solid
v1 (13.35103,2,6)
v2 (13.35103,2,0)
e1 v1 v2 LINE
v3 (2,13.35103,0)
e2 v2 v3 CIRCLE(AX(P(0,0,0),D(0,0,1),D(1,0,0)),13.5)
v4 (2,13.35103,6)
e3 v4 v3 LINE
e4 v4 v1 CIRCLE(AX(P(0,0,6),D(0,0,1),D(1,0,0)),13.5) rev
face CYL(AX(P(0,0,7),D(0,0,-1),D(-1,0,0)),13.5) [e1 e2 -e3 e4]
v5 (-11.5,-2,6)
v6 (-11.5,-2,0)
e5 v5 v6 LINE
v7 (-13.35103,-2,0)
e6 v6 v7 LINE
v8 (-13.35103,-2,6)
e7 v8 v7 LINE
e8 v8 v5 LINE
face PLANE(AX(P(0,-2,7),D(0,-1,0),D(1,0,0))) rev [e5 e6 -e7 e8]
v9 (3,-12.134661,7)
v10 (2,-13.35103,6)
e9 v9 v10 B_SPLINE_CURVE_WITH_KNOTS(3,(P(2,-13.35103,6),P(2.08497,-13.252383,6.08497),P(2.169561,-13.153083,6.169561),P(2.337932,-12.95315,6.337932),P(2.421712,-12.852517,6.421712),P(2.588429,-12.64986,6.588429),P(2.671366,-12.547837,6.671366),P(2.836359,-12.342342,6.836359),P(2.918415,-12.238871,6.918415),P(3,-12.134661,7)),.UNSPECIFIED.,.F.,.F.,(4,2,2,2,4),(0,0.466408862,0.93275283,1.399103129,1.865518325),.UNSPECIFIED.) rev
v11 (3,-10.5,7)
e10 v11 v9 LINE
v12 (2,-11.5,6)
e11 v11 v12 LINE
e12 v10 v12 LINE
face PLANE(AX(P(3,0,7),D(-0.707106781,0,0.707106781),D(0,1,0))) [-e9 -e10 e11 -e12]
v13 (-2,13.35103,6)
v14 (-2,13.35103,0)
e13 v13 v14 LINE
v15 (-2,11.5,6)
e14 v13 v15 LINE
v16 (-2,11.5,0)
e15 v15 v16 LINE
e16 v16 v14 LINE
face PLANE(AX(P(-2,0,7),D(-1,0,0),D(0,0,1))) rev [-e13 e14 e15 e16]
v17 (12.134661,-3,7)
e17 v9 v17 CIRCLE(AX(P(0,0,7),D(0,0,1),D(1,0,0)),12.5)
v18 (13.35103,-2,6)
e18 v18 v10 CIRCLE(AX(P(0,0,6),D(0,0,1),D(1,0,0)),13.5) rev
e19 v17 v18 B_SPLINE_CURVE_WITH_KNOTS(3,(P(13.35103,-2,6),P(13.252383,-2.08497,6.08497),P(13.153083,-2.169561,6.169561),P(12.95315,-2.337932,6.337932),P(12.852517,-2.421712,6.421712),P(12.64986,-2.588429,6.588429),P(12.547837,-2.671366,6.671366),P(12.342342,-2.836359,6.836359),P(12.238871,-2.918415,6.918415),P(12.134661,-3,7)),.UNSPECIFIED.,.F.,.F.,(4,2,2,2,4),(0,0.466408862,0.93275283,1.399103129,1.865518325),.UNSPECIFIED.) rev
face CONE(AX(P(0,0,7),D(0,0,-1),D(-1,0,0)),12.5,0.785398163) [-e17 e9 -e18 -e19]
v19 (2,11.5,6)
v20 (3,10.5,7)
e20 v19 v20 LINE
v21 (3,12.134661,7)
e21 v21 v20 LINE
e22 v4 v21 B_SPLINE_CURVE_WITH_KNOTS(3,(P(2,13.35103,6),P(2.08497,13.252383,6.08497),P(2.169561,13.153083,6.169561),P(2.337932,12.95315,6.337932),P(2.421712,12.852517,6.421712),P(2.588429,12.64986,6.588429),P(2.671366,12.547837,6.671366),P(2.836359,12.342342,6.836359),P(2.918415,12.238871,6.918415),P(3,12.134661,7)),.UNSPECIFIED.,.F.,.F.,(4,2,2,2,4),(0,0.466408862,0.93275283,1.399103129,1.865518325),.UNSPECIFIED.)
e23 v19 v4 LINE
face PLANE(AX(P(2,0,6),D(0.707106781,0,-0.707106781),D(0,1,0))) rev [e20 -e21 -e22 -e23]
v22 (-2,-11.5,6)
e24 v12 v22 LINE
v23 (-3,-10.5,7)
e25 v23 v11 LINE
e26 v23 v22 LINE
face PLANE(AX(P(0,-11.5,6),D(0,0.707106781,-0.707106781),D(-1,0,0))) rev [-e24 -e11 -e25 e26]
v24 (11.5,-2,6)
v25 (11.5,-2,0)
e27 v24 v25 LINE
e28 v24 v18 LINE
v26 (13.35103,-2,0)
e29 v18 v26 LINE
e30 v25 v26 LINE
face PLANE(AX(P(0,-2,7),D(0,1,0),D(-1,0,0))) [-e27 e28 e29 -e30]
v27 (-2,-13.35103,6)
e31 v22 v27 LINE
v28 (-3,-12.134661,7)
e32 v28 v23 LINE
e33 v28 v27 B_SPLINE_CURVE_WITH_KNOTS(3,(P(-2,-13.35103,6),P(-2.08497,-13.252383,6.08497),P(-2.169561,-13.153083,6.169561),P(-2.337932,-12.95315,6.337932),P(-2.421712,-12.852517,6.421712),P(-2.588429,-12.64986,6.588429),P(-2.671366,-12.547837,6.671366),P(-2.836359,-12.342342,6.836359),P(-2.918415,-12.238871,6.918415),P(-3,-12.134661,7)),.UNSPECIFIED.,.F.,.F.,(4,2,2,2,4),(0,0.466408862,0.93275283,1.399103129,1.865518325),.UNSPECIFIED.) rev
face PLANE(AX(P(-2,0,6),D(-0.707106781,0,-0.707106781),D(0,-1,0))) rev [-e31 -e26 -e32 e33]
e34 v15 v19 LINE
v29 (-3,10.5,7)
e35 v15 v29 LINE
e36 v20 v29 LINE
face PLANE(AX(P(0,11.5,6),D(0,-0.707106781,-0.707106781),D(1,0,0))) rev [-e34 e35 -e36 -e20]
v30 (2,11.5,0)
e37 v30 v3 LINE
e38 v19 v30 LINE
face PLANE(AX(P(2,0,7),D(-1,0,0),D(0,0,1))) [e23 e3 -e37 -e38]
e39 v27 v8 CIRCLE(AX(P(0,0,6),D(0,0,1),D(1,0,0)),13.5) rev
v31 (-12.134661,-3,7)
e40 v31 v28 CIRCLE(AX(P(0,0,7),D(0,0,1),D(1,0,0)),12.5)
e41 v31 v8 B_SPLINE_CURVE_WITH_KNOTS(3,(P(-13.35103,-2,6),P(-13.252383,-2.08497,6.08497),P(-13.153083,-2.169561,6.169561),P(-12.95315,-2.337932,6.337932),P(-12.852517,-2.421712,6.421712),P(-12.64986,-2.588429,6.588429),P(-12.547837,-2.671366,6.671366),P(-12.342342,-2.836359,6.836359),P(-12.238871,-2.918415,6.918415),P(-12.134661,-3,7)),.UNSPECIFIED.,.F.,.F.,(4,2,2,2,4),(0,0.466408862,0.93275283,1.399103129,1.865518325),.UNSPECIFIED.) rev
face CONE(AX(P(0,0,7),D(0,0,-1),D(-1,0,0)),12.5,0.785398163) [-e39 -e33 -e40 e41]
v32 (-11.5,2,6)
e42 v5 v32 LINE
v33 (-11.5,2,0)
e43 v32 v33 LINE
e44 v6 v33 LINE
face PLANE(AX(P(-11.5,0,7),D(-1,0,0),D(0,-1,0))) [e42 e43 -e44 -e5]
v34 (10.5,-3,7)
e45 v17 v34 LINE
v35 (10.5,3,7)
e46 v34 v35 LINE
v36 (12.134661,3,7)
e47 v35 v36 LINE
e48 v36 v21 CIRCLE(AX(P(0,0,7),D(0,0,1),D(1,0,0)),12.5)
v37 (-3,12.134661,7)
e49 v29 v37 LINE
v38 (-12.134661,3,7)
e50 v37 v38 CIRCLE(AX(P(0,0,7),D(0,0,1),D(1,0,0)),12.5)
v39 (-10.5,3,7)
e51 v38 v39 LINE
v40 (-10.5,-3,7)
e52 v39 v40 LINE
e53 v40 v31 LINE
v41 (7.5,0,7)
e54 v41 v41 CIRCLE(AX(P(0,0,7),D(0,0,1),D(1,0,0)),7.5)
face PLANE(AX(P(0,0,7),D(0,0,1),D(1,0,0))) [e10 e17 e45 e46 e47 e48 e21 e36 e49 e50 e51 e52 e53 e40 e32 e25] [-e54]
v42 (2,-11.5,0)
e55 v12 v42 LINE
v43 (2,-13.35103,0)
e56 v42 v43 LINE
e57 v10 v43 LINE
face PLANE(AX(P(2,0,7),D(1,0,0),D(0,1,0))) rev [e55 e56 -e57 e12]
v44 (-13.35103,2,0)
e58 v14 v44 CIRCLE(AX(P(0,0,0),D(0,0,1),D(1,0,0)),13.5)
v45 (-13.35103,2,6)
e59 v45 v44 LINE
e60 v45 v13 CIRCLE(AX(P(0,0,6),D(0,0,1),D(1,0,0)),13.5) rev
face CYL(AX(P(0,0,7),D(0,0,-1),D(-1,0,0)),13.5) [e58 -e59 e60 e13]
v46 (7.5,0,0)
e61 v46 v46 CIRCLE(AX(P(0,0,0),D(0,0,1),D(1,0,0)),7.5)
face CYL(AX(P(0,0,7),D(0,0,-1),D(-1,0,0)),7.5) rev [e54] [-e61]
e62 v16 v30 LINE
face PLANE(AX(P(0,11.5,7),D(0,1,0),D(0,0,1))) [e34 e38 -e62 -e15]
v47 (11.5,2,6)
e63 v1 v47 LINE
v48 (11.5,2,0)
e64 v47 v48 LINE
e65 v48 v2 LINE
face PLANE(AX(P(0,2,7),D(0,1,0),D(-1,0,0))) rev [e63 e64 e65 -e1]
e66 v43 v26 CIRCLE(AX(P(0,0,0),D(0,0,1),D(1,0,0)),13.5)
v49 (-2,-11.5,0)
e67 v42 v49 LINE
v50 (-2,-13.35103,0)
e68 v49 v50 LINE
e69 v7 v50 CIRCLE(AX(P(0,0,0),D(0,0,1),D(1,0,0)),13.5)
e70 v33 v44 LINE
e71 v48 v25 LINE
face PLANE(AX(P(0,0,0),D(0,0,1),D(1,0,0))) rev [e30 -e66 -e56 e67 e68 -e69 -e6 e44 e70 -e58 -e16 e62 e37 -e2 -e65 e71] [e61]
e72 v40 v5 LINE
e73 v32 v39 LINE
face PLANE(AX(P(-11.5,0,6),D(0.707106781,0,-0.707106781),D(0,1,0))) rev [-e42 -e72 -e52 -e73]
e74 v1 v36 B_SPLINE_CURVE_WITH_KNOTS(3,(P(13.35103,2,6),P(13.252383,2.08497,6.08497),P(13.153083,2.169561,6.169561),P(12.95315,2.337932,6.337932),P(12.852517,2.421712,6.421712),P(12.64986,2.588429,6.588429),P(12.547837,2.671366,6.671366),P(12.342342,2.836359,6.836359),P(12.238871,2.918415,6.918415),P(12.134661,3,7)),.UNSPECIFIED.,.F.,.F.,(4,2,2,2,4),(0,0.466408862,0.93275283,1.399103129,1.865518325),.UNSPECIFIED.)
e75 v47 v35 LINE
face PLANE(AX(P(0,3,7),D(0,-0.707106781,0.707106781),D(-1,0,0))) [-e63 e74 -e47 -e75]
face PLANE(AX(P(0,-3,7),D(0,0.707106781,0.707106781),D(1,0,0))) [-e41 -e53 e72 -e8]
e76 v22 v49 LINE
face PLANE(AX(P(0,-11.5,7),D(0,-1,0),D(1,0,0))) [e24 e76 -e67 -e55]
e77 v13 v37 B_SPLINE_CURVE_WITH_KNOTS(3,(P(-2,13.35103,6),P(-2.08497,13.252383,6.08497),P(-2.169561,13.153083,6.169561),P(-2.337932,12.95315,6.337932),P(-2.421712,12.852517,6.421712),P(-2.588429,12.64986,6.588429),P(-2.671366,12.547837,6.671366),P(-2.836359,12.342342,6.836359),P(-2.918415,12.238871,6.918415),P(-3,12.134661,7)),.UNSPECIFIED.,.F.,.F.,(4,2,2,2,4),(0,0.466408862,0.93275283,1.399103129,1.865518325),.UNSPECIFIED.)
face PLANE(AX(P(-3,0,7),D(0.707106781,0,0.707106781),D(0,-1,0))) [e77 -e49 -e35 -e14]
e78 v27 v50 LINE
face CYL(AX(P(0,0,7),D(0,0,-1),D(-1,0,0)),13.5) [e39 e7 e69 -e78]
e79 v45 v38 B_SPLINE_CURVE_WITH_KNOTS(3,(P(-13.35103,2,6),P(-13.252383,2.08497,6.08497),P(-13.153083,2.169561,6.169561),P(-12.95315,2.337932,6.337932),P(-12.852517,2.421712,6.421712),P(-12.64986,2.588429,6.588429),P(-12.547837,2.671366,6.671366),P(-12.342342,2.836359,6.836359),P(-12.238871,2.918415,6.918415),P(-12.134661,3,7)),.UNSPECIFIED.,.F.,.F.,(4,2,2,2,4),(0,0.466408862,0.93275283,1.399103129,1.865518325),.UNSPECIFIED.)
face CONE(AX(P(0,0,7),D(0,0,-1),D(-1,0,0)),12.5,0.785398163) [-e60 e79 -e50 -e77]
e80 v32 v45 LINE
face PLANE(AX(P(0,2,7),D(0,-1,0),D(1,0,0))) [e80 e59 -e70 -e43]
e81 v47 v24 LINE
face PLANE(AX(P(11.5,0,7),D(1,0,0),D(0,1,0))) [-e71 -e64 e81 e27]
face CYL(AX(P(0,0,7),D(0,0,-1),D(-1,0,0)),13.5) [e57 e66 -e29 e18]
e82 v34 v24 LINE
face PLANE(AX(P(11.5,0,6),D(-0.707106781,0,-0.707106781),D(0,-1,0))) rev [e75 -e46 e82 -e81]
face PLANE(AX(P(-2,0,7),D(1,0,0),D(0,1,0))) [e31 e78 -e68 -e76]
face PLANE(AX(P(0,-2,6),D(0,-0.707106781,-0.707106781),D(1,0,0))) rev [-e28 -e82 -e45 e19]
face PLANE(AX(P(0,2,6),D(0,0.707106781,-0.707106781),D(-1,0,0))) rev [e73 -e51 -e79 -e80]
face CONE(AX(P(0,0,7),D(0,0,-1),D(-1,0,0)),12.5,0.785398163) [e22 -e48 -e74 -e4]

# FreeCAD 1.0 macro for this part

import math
import FreeCAD as App
import Part
import Sketcher
from FreeCAD import Vector


def edges_at(feature, points):
    """Names of the edges that pass closest to the given points."""
    edges = feature.Shape.Edges
    near = lambda p: min(range(len(edges)), key=lambda i: edges[i].distToShape(Part.Vertex(*p))[0])
    return sorted({f"Edge{near(p) + 1}" for p in points})

doc = App.newDocument("Part")
params = doc.addObject("Spreadsheet::Sheet", "Params")
for row, (alias, value) in enumerate([
    ("sketch1_diameter", "15 mm"),
    ("sketch1_radius", "13.5 mm"),
    ("sketch1_width", "4 mm"),
    ("pad1_length", "7 mm"),
    ("chamfer_size", "1 mm"),
], start=1):
    params.set(f"A{row}", alias)
    params.set(f"B{row}", "=" + value)
    params.setAlias(f"B{row}", alias)

body = doc.addObject("PartDesign::Body", "Body")

# Sketch on XY plane
sketch1 = doc.addObject("Sketcher::SketchObject", "Sketch")
body.addObject(sketch1)
sketch1.AttachmentSupport = (doc.XY_Plane, [""])
sketch1.MapMode = "FlatFace"
sketch1.addGeometry([
    Part.LineSegment(Vector(11.5, -2, 0), Vector(11.5, 2, 0)),  # 0
    Part.LineSegment(Vector(11.5, 2, 0), Vector(13.4, 2, 0)),  # 1
    Part.ArcOfCircle(Part.Circle(Vector(0, 0, 0), Vector(0, 0, 1), 13.5), math.radians(9), math.radians(81)),  # 2
    Part.LineSegment(Vector(2, 13.4, 0), Vector(2, 11.5, 0)),  # 3
    Part.LineSegment(Vector(2, 11.5, 0), Vector(-2, 11.5, 0)),  # 4
    Part.LineSegment(Vector(-2, 11.5, 0), Vector(-2, 13.4, 0)),  # 5
    Part.ArcOfCircle(Part.Circle(Vector(0, 0, 0), Vector(0, 0, 1), 13.5), math.radians(99), math.radians(171)),  # 6
    Part.LineSegment(Vector(-13.4, 2, 0), Vector(-11.5, 2, 0)),  # 7
    Part.LineSegment(Vector(-11.5, 2, 0), Vector(-11.5, -2, 0)),  # 8
    Part.LineSegment(Vector(-11.5, -2, 0), Vector(-13.4, -2, 0)),  # 9
    Part.ArcOfCircle(Part.Circle(Vector(0, 0, 0), Vector(0, 0, 1), 13.5), math.radians(-171), math.radians(-99)),  # 10
    Part.LineSegment(Vector(-2, -13.4, 0), Vector(-2, -11.5, 0)),  # 11
    Part.LineSegment(Vector(-2, -11.5, 0), Vector(2, -11.5, 0)),  # 12
    Part.LineSegment(Vector(2, -11.5, 0), Vector(2, -13.4, 0)),  # 13
    Part.ArcOfCircle(Part.Circle(Vector(0, 0, 0), Vector(0, 0, 1), 13.5), math.radians(-81), math.radians(-9)),  # 14
    Part.LineSegment(Vector(13.4, -2, 0), Vector(11.5, -2, 0)),  # 15
    Part.Circle(Vector(0, 0, 0), Vector(0, 0, 1), 7.5),  # 16
], False)
sketch1.addConstraint([
    Sketcher.Constraint("Coincident", 0, 2, 1, 1),
    Sketcher.Constraint("Coincident", 1, 2, 2, 1),
    Sketcher.Constraint("Coincident", 2, 2, 3, 1),
    Sketcher.Constraint("Coincident", 3, 2, 4, 1),
    Sketcher.Constraint("Coincident", 4, 2, 5, 1),
    Sketcher.Constraint("Coincident", 5, 2, 6, 1),
    Sketcher.Constraint("Coincident", 6, 2, 7, 1),
    Sketcher.Constraint("Coincident", 7, 2, 8, 1),
    Sketcher.Constraint("Coincident", 8, 2, 9, 1),
    Sketcher.Constraint("Coincident", 9, 2, 10, 1),
    Sketcher.Constraint("Coincident", 10, 2, 11, 1),
    Sketcher.Constraint("Coincident", 11, 2, 12, 1),
    Sketcher.Constraint("Coincident", 12, 2, 13, 1),
    Sketcher.Constraint("Coincident", 13, 2, 14, 1),
    Sketcher.Constraint("Coincident", 14, 2, 15, 1),
    Sketcher.Constraint("Coincident", 15, 2, 0, 1),
    Sketcher.Constraint("Vertical", 0),
    Sketcher.Constraint("Horizontal", 1),
    Sketcher.Constraint("Vertical", 3),
    Sketcher.Constraint("Horizontal", 4),
    Sketcher.Constraint("Vertical", 5),
    Sketcher.Constraint("Horizontal", 7),
    Sketcher.Constraint("Vertical", 8),
    Sketcher.Constraint("Horizontal", 9),
    Sketcher.Constraint("Vertical", 11),
    Sketcher.Constraint("Horizontal", 12),
    Sketcher.Constraint("Vertical", 13),
    Sketcher.Constraint("Horizontal", 15),
    Sketcher.Constraint("Coincident", 2, 3, -1, 1),
    Sketcher.Constraint("Coincident", 6, 3, -1, 1),
    Sketcher.Constraint("Coincident", 10, 3, -1, 1),
    Sketcher.Constraint("Coincident", 14, 3, -1, 1),
    Sketcher.Constraint("Coincident", 16, 3, -1, 1),
    Sketcher.Constraint("Equal", 2, 6),
    Sketcher.Constraint("Equal", 6, 10),
    Sketcher.Constraint("Equal", 10, 14),
    Sketcher.Constraint("Symmetric", 0, 2, 8, 2, -1, 1),
    Sketcher.Constraint("Symmetric", 3, 2, 11, 2, -1, 1),
    Sketcher.Constraint("Horizontal", 2, 2, 5, 2),
    Sketcher.Constraint("Horizontal", 1, 2, 6, 2),
    Sketcher.Constraint("Horizontal", 10, 2, 13, 2),
    Sketcher.Constraint("Horizontal", 9, 2, 14, 2),
    Sketcher.Constraint("Equal", 12, 0),
    Sketcher.Constraint("Equal", 15, 3),
    Sketcher.Constraint("Diameter", 16, 15.0),
    Sketcher.Constraint("Radius", 2, 13.5),
    Sketcher.Constraint("DistanceX", 4, 2, 4, 1, 4.0),
    Sketcher.Constraint("DistanceX", -1, 1, 0, 2, 11.5),
])
sketch1.setExpression("Constraints[44]", "Params.sketch1_diameter")
sketch1.setExpression("Constraints[45]", "Params.sketch1_radius")
sketch1.setExpression("Constraints[46]", "Params.sketch1_width")
pad1 = doc.addObject("PartDesign::Pad", "Pad")
body.addObject(pad1)
pad1.Profile = sketch1
pad1.setExpression("Length", "Params.pad1_length")
doc.recompute()

chamfer = doc.addObject("PartDesign::Chamfer", "Chamfer")
body.addObject(chamfer)
chamfer.Base = (pad1, edges_at(pad1, [
    (12.426, 2, 7),
    (9.546, 9.546, 7),
    (2, 12.426, 7),
    (0, 11.5, 7),
    (-2, 12.426, 7),
    (-9.546, 9.546, 7),
    (-12.426, 2, 7),
    (-11.5, 0, 7),
    (-12.426, -2, 7),
    (-9.546, -9.546, 7),
    (-2, -12.426, 7),
    (0, -11.5, 7),
    (2, -12.426, 7),
    (9.546, -9.546, 7),
    (12.426, -2, 7),
    (11.5, 0, 7),
]))
chamfer.setExpression("Size", "Params.chamfer_size")

doc.recompute()
